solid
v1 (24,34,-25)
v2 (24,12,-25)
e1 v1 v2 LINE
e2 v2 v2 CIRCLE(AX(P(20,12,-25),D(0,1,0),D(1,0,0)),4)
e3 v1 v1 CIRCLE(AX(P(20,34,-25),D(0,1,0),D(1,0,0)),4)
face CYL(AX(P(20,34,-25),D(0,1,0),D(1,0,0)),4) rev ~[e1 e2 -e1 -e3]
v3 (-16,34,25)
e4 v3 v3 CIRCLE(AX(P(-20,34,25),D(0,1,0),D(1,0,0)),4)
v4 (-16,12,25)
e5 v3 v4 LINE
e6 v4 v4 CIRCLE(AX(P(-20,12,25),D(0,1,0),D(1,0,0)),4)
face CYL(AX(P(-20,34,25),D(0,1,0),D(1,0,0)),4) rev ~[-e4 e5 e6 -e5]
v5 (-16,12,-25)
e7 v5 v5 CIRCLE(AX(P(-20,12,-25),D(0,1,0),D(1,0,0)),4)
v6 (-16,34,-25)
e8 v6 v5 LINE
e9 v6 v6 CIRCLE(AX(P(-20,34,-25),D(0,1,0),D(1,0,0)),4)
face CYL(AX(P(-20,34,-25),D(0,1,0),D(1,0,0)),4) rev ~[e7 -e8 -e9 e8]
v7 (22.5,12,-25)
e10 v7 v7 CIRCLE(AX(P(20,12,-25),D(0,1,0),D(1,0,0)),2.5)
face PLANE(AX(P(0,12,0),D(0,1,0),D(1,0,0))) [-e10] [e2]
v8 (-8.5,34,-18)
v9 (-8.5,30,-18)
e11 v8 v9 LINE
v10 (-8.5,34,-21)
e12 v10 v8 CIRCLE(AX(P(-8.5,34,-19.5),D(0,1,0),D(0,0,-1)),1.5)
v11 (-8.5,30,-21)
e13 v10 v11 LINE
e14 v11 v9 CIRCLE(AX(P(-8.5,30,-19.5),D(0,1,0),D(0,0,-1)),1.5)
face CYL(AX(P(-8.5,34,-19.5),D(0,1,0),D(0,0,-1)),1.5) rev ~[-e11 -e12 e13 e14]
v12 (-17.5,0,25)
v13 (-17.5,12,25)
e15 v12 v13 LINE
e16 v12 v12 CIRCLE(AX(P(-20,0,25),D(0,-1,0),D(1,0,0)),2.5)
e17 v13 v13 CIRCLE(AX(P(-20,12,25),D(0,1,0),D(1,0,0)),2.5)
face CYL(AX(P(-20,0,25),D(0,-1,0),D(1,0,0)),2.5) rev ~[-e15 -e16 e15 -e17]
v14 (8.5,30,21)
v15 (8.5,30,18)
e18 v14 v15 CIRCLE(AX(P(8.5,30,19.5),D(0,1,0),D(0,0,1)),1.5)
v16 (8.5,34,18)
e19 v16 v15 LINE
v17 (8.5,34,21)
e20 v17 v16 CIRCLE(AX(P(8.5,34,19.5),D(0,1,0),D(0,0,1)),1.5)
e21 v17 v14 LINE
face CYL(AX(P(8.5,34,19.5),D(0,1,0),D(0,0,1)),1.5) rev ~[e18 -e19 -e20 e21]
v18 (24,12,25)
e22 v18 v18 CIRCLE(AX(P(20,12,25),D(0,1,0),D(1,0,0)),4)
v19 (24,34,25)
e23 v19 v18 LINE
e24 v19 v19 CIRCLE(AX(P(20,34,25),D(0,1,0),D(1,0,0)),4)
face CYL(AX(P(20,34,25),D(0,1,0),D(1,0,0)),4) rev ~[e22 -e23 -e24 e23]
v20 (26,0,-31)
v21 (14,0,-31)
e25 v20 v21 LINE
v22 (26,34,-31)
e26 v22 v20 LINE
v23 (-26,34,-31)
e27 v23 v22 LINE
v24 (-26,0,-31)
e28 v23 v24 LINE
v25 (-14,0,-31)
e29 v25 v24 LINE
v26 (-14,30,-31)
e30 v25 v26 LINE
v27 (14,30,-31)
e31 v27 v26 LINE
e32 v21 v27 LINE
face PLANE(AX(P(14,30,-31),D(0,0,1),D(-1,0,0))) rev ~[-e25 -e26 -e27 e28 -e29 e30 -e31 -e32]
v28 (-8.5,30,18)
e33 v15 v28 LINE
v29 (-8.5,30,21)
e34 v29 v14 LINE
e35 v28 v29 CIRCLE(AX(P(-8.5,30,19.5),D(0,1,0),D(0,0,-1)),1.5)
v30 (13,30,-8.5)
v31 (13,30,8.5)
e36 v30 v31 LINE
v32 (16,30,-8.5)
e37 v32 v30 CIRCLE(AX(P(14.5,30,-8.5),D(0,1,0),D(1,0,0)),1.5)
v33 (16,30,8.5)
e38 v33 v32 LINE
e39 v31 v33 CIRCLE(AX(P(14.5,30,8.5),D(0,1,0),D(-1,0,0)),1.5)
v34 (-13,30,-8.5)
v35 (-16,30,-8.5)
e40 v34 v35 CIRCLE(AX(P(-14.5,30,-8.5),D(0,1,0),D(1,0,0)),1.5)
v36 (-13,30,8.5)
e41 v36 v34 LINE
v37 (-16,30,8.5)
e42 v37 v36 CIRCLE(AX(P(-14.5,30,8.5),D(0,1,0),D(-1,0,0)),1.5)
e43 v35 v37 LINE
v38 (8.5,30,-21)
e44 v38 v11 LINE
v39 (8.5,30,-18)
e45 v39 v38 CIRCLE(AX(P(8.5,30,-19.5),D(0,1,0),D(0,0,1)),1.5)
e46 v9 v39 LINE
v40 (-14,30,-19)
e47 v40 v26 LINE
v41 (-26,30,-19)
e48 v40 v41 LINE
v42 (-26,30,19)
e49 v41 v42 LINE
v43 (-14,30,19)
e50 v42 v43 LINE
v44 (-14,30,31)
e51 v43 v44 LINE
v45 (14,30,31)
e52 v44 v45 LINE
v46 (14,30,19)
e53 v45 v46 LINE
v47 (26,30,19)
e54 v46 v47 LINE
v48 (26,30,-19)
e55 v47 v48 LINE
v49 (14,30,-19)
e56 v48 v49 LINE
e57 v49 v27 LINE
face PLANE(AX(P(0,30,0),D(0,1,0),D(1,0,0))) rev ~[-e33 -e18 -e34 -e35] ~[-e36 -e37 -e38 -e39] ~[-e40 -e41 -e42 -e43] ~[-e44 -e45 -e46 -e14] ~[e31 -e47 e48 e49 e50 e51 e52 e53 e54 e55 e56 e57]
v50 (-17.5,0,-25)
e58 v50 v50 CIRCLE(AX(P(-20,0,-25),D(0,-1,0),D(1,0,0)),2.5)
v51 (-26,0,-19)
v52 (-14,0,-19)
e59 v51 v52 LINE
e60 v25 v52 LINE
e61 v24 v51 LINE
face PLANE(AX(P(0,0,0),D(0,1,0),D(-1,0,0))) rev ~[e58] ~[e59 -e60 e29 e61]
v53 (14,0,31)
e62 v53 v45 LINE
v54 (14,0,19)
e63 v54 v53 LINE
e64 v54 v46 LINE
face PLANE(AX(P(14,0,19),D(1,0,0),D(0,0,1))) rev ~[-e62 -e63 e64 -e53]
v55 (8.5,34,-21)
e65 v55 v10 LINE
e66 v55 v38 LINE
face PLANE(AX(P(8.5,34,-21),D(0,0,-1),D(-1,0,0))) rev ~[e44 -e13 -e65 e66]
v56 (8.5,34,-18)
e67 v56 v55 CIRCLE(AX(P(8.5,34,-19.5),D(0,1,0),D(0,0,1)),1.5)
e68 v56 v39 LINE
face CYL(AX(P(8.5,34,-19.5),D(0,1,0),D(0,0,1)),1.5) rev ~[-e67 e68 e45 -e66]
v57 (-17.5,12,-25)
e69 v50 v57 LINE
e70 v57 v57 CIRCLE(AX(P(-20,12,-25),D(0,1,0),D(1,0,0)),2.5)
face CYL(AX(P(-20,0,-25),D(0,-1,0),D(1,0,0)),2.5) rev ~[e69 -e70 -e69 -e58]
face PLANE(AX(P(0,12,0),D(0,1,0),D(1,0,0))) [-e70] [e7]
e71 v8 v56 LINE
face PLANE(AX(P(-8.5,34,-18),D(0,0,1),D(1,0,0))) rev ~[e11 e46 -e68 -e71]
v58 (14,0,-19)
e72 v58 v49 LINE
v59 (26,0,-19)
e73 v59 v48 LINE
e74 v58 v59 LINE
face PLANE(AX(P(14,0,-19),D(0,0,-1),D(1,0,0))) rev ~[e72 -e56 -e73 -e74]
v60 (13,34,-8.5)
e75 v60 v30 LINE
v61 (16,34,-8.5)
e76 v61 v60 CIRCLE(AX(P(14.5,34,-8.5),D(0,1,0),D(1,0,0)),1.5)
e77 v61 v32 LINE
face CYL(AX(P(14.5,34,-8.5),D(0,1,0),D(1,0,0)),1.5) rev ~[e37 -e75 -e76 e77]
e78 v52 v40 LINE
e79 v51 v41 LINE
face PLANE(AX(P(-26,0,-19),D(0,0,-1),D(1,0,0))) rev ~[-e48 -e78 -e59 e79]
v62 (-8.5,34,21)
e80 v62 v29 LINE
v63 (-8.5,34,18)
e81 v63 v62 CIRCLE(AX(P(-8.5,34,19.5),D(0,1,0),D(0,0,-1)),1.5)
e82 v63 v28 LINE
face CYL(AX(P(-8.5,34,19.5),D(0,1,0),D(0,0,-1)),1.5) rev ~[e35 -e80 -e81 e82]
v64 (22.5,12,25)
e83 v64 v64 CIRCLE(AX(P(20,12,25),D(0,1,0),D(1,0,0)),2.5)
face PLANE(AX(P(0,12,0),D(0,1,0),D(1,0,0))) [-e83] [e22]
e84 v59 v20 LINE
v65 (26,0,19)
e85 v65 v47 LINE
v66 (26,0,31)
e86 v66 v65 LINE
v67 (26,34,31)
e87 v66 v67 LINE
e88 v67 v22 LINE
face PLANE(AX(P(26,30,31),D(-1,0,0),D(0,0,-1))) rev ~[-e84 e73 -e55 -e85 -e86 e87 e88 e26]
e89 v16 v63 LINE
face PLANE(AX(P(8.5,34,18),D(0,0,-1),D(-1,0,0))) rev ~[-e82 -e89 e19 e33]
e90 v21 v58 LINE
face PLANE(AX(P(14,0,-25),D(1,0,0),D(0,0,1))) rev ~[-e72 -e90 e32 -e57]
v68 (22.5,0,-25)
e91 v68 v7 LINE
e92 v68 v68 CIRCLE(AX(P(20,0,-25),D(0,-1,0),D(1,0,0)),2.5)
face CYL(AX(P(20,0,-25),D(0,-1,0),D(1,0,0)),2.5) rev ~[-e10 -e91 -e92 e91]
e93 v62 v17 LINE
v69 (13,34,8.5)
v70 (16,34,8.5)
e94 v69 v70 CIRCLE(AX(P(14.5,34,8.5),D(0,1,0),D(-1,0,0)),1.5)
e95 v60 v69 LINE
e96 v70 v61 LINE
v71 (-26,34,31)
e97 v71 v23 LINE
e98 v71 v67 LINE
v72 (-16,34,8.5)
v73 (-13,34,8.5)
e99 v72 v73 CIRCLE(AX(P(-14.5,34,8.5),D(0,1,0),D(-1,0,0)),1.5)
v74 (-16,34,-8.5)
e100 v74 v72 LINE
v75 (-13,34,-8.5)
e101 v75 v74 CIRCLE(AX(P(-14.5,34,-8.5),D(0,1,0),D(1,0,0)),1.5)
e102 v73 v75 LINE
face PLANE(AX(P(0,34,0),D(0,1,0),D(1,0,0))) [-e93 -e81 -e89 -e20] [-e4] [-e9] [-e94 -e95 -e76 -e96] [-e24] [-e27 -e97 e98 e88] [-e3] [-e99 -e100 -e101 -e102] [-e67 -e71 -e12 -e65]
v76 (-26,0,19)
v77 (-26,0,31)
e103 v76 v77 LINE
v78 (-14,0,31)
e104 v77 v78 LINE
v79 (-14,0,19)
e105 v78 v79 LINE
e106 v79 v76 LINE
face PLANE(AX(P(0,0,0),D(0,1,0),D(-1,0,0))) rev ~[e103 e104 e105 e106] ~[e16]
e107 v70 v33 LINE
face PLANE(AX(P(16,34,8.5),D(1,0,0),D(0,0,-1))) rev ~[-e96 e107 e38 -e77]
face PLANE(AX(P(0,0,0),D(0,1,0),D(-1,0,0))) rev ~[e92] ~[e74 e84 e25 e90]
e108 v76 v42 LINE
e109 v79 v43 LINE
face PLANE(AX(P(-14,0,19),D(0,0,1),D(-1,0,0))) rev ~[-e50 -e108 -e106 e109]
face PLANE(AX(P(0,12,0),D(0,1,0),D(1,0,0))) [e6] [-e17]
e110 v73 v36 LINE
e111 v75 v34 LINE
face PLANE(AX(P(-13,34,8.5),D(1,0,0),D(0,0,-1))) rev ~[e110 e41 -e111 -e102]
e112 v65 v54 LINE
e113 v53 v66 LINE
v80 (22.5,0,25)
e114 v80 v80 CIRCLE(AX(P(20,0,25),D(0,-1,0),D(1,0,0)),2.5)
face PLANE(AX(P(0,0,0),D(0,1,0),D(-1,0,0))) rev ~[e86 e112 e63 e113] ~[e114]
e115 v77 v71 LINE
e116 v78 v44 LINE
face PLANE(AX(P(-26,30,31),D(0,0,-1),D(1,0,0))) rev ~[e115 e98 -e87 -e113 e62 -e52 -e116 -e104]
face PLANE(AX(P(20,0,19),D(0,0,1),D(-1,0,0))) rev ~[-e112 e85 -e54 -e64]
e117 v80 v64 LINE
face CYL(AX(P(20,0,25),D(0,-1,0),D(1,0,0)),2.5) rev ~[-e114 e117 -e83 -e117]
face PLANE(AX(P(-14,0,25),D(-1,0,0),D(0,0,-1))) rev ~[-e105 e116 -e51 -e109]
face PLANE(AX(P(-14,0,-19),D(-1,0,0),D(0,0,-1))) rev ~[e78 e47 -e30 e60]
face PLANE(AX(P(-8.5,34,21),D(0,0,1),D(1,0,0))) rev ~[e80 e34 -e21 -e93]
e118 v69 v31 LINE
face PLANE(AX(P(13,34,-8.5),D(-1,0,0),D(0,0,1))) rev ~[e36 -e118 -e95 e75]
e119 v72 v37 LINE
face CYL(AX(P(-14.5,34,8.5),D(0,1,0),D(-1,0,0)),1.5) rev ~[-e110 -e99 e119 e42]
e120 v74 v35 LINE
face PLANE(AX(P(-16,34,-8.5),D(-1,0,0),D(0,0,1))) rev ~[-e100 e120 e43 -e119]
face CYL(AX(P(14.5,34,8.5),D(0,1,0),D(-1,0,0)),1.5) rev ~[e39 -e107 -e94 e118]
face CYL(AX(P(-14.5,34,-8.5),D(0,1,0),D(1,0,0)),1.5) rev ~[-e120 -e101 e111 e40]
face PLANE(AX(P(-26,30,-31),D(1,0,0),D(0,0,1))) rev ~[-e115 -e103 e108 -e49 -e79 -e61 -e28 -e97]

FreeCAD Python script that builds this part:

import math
import FreeCAD as App
import Part
import Sketcher
from FreeCAD import Vector

doc = App.newDocument("Part")
body = doc.addObject("PartDesign::Body", "Body")
body.AllowCompound = True

sketch1 = body.newObject("Sketcher::SketchObject", "Sketch")
sketch1.AttachmentSupport = (doc.getObject("XZ_Plane"), [""])
sketch1.MapMode = "FlatFace"
sketch1.addGeometry(Part.LineSegment(Vector(-14, 19, 0), Vector(-26, 19, 0)), False)
sketch1.addGeometry(Part.LineSegment(Vector(-26, 19, 0), Vector(-26, 31, 0)), False)
sketch1.addGeometry(Part.LineSegment(Vector(-26, 31, 0), Vector(-14, 31, 0)), False)
sketch1.addGeometry(Part.LineSegment(Vector(-14, 31, 0), Vector(-14, 19, 0)), False)
sketch1.addGeometry(Part.LineSegment(Vector(14, 19, 0), Vector(14, 31, 0)), False)
sketch1.addGeometry(Part.LineSegment(Vector(14, 31, 0), Vector(26, 31, 0)), False)
sketch1.addGeometry(Part.LineSegment(Vector(26, 31, 0), Vector(26, 19, 0)), False)
sketch1.addGeometry(Part.LineSegment(Vector(26, 19, 0), Vector(14, 19, 0)), False)
sketch1.addGeometry(Part.LineSegment(Vector(-26, -19, 0), Vector(-14, -19, 0)), False)
sketch1.addGeometry(Part.LineSegment(Vector(-14, -19, 0), Vector(-14, -31, 0)), False)
sketch1.addGeometry(Part.LineSegment(Vector(-14, -31, 0), Vector(-26, -31, 0)), False)
sketch1.addGeometry(Part.LineSegment(Vector(-26, -31, 0), Vector(-26, -19, 0)), False)
sketch1.addGeometry(Part.LineSegment(Vector(14, -19, 0), Vector(26, -19, 0)), False)
sketch1.addGeometry(Part.LineSegment(Vector(26, -19, 0), Vector(26, -31, 0)), False)
sketch1.addGeometry(Part.LineSegment(Vector(26, -31, 0), Vector(14, -31, 0)), False)
sketch1.addGeometry(Part.LineSegment(Vector(14, -31, 0), Vector(14, -19, 0)), False)
sketch1.addConstraint(Sketcher.Constraint("Coincident", 0, 2, 1, 1))
sketch1.addConstraint(Sketcher.Constraint("Coincident", 1, 2, 2, 1))
sketch1.addConstraint(Sketcher.Constraint("Coincident", 2, 2, 3, 1))
sketch1.addConstraint(Sketcher.Constraint("Coincident", 3, 2, 0, 1))
sketch1.addConstraint(Sketcher.Constraint("Coincident", 4, 2, 5, 1))
sketch1.addConstraint(Sketcher.Constraint("Coincident", 5, 2, 6, 1))
sketch1.addConstraint(Sketcher.Constraint("Coincident", 6, 2, 7, 1))
sketch1.addConstraint(Sketcher.Constraint("Coincident", 7, 2, 4, 1))
sketch1.addConstraint(Sketcher.Constraint("Coincident", 8, 2, 9, 1))
sketch1.addConstraint(Sketcher.Constraint("Coincident", 9, 2, 10, 1))
sketch1.addConstraint(Sketcher.Constraint("Coincident", 10, 2, 11, 1))
sketch1.addConstraint(Sketcher.Constraint("Coincident", 11, 2, 8, 1))
sketch1.addConstraint(Sketcher.Constraint("Coincident", 12, 2, 13, 1))
sketch1.addConstraint(Sketcher.Constraint("Coincident", 13, 2, 14, 1))
sketch1.addConstraint(Sketcher.Constraint("Coincident", 14, 2, 15, 1))
sketch1.addConstraint(Sketcher.Constraint("Coincident", 15, 2, 12, 1))
sketch1.addConstraint(Sketcher.Constraint("Horizontal", 0))
sketch1.addConstraint(Sketcher.Constraint("Vertical", 1))
sketch1.addConstraint(Sketcher.Constraint("Horizontal", 2))
sketch1.addConstraint(Sketcher.Constraint("Vertical", 3))
sketch1.addConstraint(Sketcher.Constraint("Vertical", 4))
sketch1.addConstraint(Sketcher.Constraint("Horizontal", 5))
sketch1.addConstraint(Sketcher.Constraint("Vertical", 6))
sketch1.addConstraint(Sketcher.Constraint("Horizontal", 7))
sketch1.addConstraint(Sketcher.Constraint("Horizontal", 8))
sketch1.addConstraint(Sketcher.Constraint("Vertical", 9))
sketch1.addConstraint(Sketcher.Constraint("Horizontal", 10))
sketch1.addConstraint(Sketcher.Constraint("Vertical", 11))
sketch1.addConstraint(Sketcher.Constraint("Horizontal", 12))
sketch1.addConstraint(Sketcher.Constraint("Vertical", 13))
sketch1.addConstraint(Sketcher.Constraint("Horizontal", 14))
sketch1.addConstraint(Sketcher.Constraint("Vertical", 15))
sketch1.addConstraint(Sketcher.Constraint("Symmetric", 7, 2, 8, 2, -1, 1))
sketch1.addConstraint(Sketcher.Constraint("Symmetric", 5, 2, 10, 2, -1, 1))
sketch1.addConstraint(Sketcher.Constraint("Symmetric", 0, 2, 12, 2, -1, 1))
sketch1.addConstraint(Sketcher.Constraint("Symmetric", 2, 2, 14, 2, -1, 1))
sketch1.addConstraint(Sketcher.Constraint("Symmetric", 2, 2, 4, 2, -2))
sketch1.addConstraint(Sketcher.Constraint("Symmetric", 0, 2, 6, 2, -2))
sketch1.addConstraint(Sketcher.Constraint("Equal", 14, 1))
sketch1.addConstraint(Sketcher.Constraint("DistanceX", 0, 2, 0, 1, 12.0))
sketch1.addConstraint(Sketcher.Constraint("DistanceX", 1, 2, 4, 2, 40.0))
sketch1.addConstraint(Sketcher.Constraint("DistanceY", 8, 2, 2, 2, 50.0))
pad1 = body.newObject("PartDesign::Pad", "Pad")
pad1.Profile = sketch1
pad1.Length = 30
pad1.Reversed = True

sketch2 = body.newObject("Sketcher::SketchObject", "Sketch001")
sketch2.AttachmentSupport = (doc.getObject("XZ_Plane"), [""])
sketch2.MapMode = "FlatFace"
sketch2.AttachmentOffset = App.Placement(Vector(0, 0, -30), App.Rotation())
sketch2.addGeometry(Part.LineSegment(Vector(-26, -31, 0), Vector(-26, 31, 0)), False)
sketch2.addGeometry(Part.LineSegment(Vector(-26, 31, 0), Vector(26, 31, 0)), False)
sketch2.addGeometry(Part.LineSegment(Vector(26, 31, 0), Vector(26, -31, 0)), False)
sketch2.addGeometry(Part.LineSegment(Vector(26, -31, 0), Vector(-26, -31, 0)), False)
sketch2.addConstraint(Sketcher.Constraint("Coincident", 0, 2, 1, 1))
sketch2.addConstraint(Sketcher.Constraint("Coincident", 1, 2, 2, 1))
sketch2.addConstraint(Sketcher.Constraint("Coincident", 2, 2, 3, 1))
sketch2.addConstraint(Sketcher.Constraint("Coincident", 3, 2, 0, 1))
sketch2.addConstraint(Sketcher.Constraint("Vertical", 0))
sketch2.addConstraint(Sketcher.Constraint("Horizontal", 1))
sketch2.addConstraint(Sketcher.Constraint("Vertical", 2))
sketch2.addConstraint(Sketcher.Constraint("Horizontal", 3))
sketch2.addConstraint(Sketcher.Constraint("Symmetric", 0, 2, 2, 2, -1, 1))
sketch2.addConstraint(Sketcher.Constraint("DistanceX", 1, 1, 1, 2, 52.0))
sketch2.addConstraint(Sketcher.Constraint("DistanceY", 0, 1, 0, 2, 62.0))
pad2 = body.newObject("PartDesign::Pad", "Pad001")
pad2.Profile = sketch2
pad2.Length = 4
pad2.Reversed = True

sketch3 = body.newObject("Sketcher::SketchObject", "Sketch002")
sketch3.AttachmentSupport = (doc.getObject("XZ_Plane"), [""])
sketch3.MapMode = "FlatFace"
sketch3.addGeometry(Part.Circle(Vector(-20, 25, 0), Vector(0, 0, 1), 2.5), False)
sketch3.addGeometry(Part.Circle(Vector(20, 25, 0), Vector(0, 0, 1), 2.5), False)
sketch3.addGeometry(Part.Circle(Vector(-20, -25, 0), Vector(0, 0, 1), 2.5), False)
sketch3.addGeometry(Part.Circle(Vector(20, -25, 0), Vector(0, 0, 1), 2.5), False)
sketch3.addConstraint(Sketcher.Constraint("Equal", 0, 1))
sketch3.addConstraint(Sketcher.Constraint("Equal", 1, 2))
sketch3.addConstraint(Sketcher.Constraint("Equal", 2, 3))
sketch3.addConstraint(Sketcher.Constraint("Symmetric", 1, 3, 2, 3, -1, 1))
sketch3.addConstraint(Sketcher.Constraint("Symmetric", 0, 3, 3, 3, -1, 1))
sketch3.addConstraint(Sketcher.Constraint("Symmetric", 0, 3, 1, 3, -2))
sketch3.addConstraint(Sketcher.Constraint("Diameter", 0, 5.0))
sketch3.addConstraint(Sketcher.Constraint("DistanceX", 0, 3, -1, 1, 20.0))
sketch3.addConstraint(Sketcher.Constraint("DistanceY", -1, 1, 0, 3, 25.0))
pocket1 = body.newObject("PartDesign::Pocket", "Pocket")
pocket1.Profile = sketch3
pocket1.Length = 34

sketch4 = body.newObject("Sketcher::SketchObject", "Sketch003")
sketch4.AttachmentSupport = (doc.getObject("XZ_Plane"), [""])
sketch4.MapMode = "FlatFace"
sketch4.AttachmentOffset = App.Placement(Vector(0, 0, -34), App.Rotation())
sketch4.addGeometry(Part.Circle(Vector(20, -25, 0), Vector(0, 0, 1), 4), False)
sketch4.addGeometry(Part.Circle(Vector(20, -25, 0), Vector(0, 0, 1), 2.5), False)
sketch4.addGeometry(Part.Circle(Vector(20, 25, 0), Vector(0, 0, 1), 4), False)
sketch4.addGeometry(Part.Circle(Vector(20, 25, 0), Vector(0, 0, 1), 2.5), False)
sketch4.addGeometry(Part.Circle(Vector(-20, 25, 0), Vector(0, 0, 1), 4), False)
sketch4.addGeometry(Part.Circle(Vector(-20, 25, 0), Vector(0, 0, 1), 2.5), False)
sketch4.addGeometry(Part.Circle(Vector(-20, -25, 0), Vector(0, 0, 1), 4), False)
sketch4.addGeometry(Part.Circle(Vector(-20, -25, 0), Vector(0, 0, 1), 2.5), False)
sketch4.addConstraint(Sketcher.Constraint("Coincident", 1, 3, 0, 3))
sketch4.addConstraint(Sketcher.Constraint("Coincident", 3, 3, 2, 3))
sketch4.addConstraint(Sketcher.Constraint("Coincident", 5, 3, 4, 3))
sketch4.addConstraint(Sketcher.Constraint("Coincident", 7, 3, 6, 3))
sketch4.addConstraint(Sketcher.Constraint("Equal", 0, 2))
sketch4.addConstraint(Sketcher.Constraint("Equal", 1, 3))
sketch4.addConstraint(Sketcher.Constraint("Equal", 2, 4))
sketch4.addConstraint(Sketcher.Constraint("Equal", 3, 5))
sketch4.addConstraint(Sketcher.Constraint("Equal", 4, 6))
sketch4.addConstraint(Sketcher.Constraint("Equal", 5, 7))
sketch4.addConstraint(Sketcher.Constraint("Symmetric", 0, 3, 4, 3, -1, 1))
sketch4.addConstraint(Sketcher.Constraint("Symmetric", 2, 3, 6, 3, -1, 1))
sketch4.addConstraint(Sketcher.Constraint("Symmetric", 2, 3, 4, 3, -2))
sketch4.addConstraint(Sketcher.Constraint("Diameter", 0, 8.0))
sketch4.addConstraint(Sketcher.Constraint("Diameter", 1, 5.0))
sketch4.addConstraint(Sketcher.Constraint("DistanceX", -1, 1, 0, 3, 20.0))
sketch4.addConstraint(Sketcher.Constraint("DistanceY", 0, 3, -1, 1, 25.0))
pocket2 = body.newObject("PartDesign::Pocket", "Pocket001")
pocket2.Profile = sketch4
pocket2.Length = 22
pocket2.Reversed = True

sketch5 = body.newObject("Sketcher::SketchObject", "Sketch004")
sketch5.AttachmentSupport = (doc.getObject("XZ_Plane"), [""])
sketch5.MapMode = "FlatFace"
sketch5.AttachmentOffset = App.Placement(Vector(0, 0, -34), App.Rotation())
sketch5.addGeometry(Part.ArcOfCircle(Part.Circle(Vector(14.5, -8.5, 0), Vector(0, 0, 1), 1.5), math.radians(180), math.radians(360)), False)
sketch5.addGeometry(Part.LineSegment(Vector(13, -8.5, 0), Vector(13, 8.5, 0)), False)
sketch5.addGeometry(Part.ArcOfCircle(Part.Circle(Vector(14.5, 8.5, 0), Vector(0, 0, 1), 1.5), math.radians(0), math.radians(180)), False)
sketch5.addGeometry(Part.LineSegment(Vector(16, 8.5, 0), Vector(16, -8.5, 0)), False)
sketch5.addGeometry(Part.ArcOfCircle(Part.Circle(Vector(8.5, -19.5, 0), Vector(0, 0, 1), 1.5), math.radians(-90), math.radians(90)), False)
sketch5.addGeometry(Part.LineSegment(Vector(8.5, -21, 0), Vector(-8.5, -21, 0)), False)
sketch5.addGeometry(Part.ArcOfCircle(Part.Circle(Vector(-8.5, -19.5, 0), Vector(0, 0, 1), 1.5), math.radians(90), math.radians(270)), False)
sketch5.addGeometry(Part.LineSegment(Vector(-8.5, -18, 0), Vector(8.5, -18, 0)), False)
sketch5.addGeometry(Part.ArcOfCircle(Part.Circle(Vector(-14.5, -8.5, 0), Vector(0, 0, 1), 1.5), math.radians(180), math.radians(360)), False)
sketch5.addGeometry(Part.LineSegment(Vector(-16, -8.5, 0), Vector(-16, 8.5, 0)), False)
sketch5.addGeometry(Part.ArcOfCircle(Part.Circle(Vector(-14.5, 8.5, 0), Vector(0, 0, 1), 1.5), math.radians(0), math.radians(180)), False)
sketch5.addGeometry(Part.LineSegment(Vector(-13, 8.5, 0), Vector(-13, -8.5, 0)), False)
sketch5.addGeometry(Part.ArcOfCircle(Part.Circle(Vector(-8.5, 19.5, 0), Vector(0, 0, 1), 1.5), math.radians(90), math.radians(270)), False)
sketch5.addGeometry(Part.LineSegment(Vector(-8.5, 21, 0), Vector(8.5, 21, 0)), False)
sketch5.addGeometry(Part.ArcOfCircle(Part.Circle(Vector(8.5, 19.5, 0), Vector(0, 0, 1), 1.5), math.radians(-90), math.radians(90)), False)
sketch5.addGeometry(Part.LineSegment(Vector(8.5, 18, 0), Vector(-8.5, 18, 0)), False)
sketch5.addConstraint(Sketcher.Constraint("Tangent", 0, 1, 1, 1))
sketch5.addConstraint(Sketcher.Constraint("Tangent", 1, 2, 2, 2))
sketch5.addConstraint(Sketcher.Constraint("Tangent", 2, 1, 3, 1))
sketch5.addConstraint(Sketcher.Constraint("Tangent", 3, 2, 0, 2))
sketch5.addConstraint(Sketcher.Constraint("Tangent", 4, 1, 5, 1))
sketch5.addConstraint(Sketcher.Constraint("Tangent", 5, 2, 6, 2))
sketch5.addConstraint(Sketcher.Constraint("Tangent", 6, 1, 7, 1))
sketch5.addConstraint(Sketcher.Constraint("Tangent", 7, 2, 4, 2))
sketch5.addConstraint(Sketcher.Constraint("Tangent", 8, 1, 9, 1))
sketch5.addConstraint(Sketcher.Constraint("Tangent", 9, 2, 10, 2))
sketch5.addConstraint(Sketcher.Constraint("Tangent", 10, 1, 11, 1))
sketch5.addConstraint(Sketcher.Constraint("Tangent", 11, 2, 8, 2))
sketch5.addConstraint(Sketcher.Constraint("Tangent", 12, 1, 13, 1))
sketch5.addConstraint(Sketcher.Constraint("Tangent", 13, 2, 14, 2))
sketch5.addConstraint(Sketcher.Constraint("Tangent", 14, 1, 15, 1))
sketch5.addConstraint(Sketcher.Constraint("Tangent", 15, 2, 12, 2))
sketch5.addConstraint(Sketcher.Constraint("Vertical", 1))
sketch5.addConstraint(Sketcher.Constraint("Vertical", 3))
sketch5.addConstraint(Sketcher.Constraint("Horizontal", 5))
sketch5.addConstraint(Sketcher.Constraint("Horizontal", 7))
sketch5.addConstraint(Sketcher.Constraint("Vertical", 9))
sketch5.addConstraint(Sketcher.Constraint("Vertical", 11))
sketch5.addConstraint(Sketcher.Constraint("Horizontal", 13))
sketch5.addConstraint(Sketcher.Constraint("Horizontal", 15))
sketch5.addConstraint(Sketcher.Constraint("Equal", 2, 4))
sketch5.addConstraint(Sketcher.Constraint("Equal", 6, 8))
sketch5.addConstraint(Sketcher.Constraint("Equal", 10, 12))
sketch5.addConstraint(Sketcher.Constraint("Symmetric", 2, 3, 8, 3, -1, 1))
sketch5.addConstraint(Sketcher.Constraint("Symmetric", 4, 3, 12, 3, -1, 1))
sketch5.addConstraint(Sketcher.Constraint("Horizontal", 0, 3, 8, 3))
sketch5.addConstraint(Sketcher.Constraint("Horizontal", 2, 3, 10, 3))
sketch5.addConstraint(Sketcher.Constraint("Vertical", 6, 3, 12, 3))
sketch5.addConstraint(Sketcher.Constraint("Vertical", 4, 3, 14, 3))
sketch5.addConstraint(Sketcher.Constraint("Equal", 15, 1))
sketch5.addConstraint(Sketcher.Constraint("Radius", 0, 1.5))
sketch5.addConstraint(Sketcher.Constraint("DistanceX", 5, 2, 5, 1, 17.0))
sketch5.addConstraint(Sketcher.Constraint("DistanceX", -1, 1, 0, 1, 13.0))
sketch5.addConstraint(Sketcher.Constraint("DistanceY", 4, 1, -1, 1, 21.0))
pocket3 = body.newObject("PartDesign::Pocket", "Pocket002")
pocket3.Profile = sketch5
pocket3.Length = 22
pocket3.Reversed = True

doc.recompute()
